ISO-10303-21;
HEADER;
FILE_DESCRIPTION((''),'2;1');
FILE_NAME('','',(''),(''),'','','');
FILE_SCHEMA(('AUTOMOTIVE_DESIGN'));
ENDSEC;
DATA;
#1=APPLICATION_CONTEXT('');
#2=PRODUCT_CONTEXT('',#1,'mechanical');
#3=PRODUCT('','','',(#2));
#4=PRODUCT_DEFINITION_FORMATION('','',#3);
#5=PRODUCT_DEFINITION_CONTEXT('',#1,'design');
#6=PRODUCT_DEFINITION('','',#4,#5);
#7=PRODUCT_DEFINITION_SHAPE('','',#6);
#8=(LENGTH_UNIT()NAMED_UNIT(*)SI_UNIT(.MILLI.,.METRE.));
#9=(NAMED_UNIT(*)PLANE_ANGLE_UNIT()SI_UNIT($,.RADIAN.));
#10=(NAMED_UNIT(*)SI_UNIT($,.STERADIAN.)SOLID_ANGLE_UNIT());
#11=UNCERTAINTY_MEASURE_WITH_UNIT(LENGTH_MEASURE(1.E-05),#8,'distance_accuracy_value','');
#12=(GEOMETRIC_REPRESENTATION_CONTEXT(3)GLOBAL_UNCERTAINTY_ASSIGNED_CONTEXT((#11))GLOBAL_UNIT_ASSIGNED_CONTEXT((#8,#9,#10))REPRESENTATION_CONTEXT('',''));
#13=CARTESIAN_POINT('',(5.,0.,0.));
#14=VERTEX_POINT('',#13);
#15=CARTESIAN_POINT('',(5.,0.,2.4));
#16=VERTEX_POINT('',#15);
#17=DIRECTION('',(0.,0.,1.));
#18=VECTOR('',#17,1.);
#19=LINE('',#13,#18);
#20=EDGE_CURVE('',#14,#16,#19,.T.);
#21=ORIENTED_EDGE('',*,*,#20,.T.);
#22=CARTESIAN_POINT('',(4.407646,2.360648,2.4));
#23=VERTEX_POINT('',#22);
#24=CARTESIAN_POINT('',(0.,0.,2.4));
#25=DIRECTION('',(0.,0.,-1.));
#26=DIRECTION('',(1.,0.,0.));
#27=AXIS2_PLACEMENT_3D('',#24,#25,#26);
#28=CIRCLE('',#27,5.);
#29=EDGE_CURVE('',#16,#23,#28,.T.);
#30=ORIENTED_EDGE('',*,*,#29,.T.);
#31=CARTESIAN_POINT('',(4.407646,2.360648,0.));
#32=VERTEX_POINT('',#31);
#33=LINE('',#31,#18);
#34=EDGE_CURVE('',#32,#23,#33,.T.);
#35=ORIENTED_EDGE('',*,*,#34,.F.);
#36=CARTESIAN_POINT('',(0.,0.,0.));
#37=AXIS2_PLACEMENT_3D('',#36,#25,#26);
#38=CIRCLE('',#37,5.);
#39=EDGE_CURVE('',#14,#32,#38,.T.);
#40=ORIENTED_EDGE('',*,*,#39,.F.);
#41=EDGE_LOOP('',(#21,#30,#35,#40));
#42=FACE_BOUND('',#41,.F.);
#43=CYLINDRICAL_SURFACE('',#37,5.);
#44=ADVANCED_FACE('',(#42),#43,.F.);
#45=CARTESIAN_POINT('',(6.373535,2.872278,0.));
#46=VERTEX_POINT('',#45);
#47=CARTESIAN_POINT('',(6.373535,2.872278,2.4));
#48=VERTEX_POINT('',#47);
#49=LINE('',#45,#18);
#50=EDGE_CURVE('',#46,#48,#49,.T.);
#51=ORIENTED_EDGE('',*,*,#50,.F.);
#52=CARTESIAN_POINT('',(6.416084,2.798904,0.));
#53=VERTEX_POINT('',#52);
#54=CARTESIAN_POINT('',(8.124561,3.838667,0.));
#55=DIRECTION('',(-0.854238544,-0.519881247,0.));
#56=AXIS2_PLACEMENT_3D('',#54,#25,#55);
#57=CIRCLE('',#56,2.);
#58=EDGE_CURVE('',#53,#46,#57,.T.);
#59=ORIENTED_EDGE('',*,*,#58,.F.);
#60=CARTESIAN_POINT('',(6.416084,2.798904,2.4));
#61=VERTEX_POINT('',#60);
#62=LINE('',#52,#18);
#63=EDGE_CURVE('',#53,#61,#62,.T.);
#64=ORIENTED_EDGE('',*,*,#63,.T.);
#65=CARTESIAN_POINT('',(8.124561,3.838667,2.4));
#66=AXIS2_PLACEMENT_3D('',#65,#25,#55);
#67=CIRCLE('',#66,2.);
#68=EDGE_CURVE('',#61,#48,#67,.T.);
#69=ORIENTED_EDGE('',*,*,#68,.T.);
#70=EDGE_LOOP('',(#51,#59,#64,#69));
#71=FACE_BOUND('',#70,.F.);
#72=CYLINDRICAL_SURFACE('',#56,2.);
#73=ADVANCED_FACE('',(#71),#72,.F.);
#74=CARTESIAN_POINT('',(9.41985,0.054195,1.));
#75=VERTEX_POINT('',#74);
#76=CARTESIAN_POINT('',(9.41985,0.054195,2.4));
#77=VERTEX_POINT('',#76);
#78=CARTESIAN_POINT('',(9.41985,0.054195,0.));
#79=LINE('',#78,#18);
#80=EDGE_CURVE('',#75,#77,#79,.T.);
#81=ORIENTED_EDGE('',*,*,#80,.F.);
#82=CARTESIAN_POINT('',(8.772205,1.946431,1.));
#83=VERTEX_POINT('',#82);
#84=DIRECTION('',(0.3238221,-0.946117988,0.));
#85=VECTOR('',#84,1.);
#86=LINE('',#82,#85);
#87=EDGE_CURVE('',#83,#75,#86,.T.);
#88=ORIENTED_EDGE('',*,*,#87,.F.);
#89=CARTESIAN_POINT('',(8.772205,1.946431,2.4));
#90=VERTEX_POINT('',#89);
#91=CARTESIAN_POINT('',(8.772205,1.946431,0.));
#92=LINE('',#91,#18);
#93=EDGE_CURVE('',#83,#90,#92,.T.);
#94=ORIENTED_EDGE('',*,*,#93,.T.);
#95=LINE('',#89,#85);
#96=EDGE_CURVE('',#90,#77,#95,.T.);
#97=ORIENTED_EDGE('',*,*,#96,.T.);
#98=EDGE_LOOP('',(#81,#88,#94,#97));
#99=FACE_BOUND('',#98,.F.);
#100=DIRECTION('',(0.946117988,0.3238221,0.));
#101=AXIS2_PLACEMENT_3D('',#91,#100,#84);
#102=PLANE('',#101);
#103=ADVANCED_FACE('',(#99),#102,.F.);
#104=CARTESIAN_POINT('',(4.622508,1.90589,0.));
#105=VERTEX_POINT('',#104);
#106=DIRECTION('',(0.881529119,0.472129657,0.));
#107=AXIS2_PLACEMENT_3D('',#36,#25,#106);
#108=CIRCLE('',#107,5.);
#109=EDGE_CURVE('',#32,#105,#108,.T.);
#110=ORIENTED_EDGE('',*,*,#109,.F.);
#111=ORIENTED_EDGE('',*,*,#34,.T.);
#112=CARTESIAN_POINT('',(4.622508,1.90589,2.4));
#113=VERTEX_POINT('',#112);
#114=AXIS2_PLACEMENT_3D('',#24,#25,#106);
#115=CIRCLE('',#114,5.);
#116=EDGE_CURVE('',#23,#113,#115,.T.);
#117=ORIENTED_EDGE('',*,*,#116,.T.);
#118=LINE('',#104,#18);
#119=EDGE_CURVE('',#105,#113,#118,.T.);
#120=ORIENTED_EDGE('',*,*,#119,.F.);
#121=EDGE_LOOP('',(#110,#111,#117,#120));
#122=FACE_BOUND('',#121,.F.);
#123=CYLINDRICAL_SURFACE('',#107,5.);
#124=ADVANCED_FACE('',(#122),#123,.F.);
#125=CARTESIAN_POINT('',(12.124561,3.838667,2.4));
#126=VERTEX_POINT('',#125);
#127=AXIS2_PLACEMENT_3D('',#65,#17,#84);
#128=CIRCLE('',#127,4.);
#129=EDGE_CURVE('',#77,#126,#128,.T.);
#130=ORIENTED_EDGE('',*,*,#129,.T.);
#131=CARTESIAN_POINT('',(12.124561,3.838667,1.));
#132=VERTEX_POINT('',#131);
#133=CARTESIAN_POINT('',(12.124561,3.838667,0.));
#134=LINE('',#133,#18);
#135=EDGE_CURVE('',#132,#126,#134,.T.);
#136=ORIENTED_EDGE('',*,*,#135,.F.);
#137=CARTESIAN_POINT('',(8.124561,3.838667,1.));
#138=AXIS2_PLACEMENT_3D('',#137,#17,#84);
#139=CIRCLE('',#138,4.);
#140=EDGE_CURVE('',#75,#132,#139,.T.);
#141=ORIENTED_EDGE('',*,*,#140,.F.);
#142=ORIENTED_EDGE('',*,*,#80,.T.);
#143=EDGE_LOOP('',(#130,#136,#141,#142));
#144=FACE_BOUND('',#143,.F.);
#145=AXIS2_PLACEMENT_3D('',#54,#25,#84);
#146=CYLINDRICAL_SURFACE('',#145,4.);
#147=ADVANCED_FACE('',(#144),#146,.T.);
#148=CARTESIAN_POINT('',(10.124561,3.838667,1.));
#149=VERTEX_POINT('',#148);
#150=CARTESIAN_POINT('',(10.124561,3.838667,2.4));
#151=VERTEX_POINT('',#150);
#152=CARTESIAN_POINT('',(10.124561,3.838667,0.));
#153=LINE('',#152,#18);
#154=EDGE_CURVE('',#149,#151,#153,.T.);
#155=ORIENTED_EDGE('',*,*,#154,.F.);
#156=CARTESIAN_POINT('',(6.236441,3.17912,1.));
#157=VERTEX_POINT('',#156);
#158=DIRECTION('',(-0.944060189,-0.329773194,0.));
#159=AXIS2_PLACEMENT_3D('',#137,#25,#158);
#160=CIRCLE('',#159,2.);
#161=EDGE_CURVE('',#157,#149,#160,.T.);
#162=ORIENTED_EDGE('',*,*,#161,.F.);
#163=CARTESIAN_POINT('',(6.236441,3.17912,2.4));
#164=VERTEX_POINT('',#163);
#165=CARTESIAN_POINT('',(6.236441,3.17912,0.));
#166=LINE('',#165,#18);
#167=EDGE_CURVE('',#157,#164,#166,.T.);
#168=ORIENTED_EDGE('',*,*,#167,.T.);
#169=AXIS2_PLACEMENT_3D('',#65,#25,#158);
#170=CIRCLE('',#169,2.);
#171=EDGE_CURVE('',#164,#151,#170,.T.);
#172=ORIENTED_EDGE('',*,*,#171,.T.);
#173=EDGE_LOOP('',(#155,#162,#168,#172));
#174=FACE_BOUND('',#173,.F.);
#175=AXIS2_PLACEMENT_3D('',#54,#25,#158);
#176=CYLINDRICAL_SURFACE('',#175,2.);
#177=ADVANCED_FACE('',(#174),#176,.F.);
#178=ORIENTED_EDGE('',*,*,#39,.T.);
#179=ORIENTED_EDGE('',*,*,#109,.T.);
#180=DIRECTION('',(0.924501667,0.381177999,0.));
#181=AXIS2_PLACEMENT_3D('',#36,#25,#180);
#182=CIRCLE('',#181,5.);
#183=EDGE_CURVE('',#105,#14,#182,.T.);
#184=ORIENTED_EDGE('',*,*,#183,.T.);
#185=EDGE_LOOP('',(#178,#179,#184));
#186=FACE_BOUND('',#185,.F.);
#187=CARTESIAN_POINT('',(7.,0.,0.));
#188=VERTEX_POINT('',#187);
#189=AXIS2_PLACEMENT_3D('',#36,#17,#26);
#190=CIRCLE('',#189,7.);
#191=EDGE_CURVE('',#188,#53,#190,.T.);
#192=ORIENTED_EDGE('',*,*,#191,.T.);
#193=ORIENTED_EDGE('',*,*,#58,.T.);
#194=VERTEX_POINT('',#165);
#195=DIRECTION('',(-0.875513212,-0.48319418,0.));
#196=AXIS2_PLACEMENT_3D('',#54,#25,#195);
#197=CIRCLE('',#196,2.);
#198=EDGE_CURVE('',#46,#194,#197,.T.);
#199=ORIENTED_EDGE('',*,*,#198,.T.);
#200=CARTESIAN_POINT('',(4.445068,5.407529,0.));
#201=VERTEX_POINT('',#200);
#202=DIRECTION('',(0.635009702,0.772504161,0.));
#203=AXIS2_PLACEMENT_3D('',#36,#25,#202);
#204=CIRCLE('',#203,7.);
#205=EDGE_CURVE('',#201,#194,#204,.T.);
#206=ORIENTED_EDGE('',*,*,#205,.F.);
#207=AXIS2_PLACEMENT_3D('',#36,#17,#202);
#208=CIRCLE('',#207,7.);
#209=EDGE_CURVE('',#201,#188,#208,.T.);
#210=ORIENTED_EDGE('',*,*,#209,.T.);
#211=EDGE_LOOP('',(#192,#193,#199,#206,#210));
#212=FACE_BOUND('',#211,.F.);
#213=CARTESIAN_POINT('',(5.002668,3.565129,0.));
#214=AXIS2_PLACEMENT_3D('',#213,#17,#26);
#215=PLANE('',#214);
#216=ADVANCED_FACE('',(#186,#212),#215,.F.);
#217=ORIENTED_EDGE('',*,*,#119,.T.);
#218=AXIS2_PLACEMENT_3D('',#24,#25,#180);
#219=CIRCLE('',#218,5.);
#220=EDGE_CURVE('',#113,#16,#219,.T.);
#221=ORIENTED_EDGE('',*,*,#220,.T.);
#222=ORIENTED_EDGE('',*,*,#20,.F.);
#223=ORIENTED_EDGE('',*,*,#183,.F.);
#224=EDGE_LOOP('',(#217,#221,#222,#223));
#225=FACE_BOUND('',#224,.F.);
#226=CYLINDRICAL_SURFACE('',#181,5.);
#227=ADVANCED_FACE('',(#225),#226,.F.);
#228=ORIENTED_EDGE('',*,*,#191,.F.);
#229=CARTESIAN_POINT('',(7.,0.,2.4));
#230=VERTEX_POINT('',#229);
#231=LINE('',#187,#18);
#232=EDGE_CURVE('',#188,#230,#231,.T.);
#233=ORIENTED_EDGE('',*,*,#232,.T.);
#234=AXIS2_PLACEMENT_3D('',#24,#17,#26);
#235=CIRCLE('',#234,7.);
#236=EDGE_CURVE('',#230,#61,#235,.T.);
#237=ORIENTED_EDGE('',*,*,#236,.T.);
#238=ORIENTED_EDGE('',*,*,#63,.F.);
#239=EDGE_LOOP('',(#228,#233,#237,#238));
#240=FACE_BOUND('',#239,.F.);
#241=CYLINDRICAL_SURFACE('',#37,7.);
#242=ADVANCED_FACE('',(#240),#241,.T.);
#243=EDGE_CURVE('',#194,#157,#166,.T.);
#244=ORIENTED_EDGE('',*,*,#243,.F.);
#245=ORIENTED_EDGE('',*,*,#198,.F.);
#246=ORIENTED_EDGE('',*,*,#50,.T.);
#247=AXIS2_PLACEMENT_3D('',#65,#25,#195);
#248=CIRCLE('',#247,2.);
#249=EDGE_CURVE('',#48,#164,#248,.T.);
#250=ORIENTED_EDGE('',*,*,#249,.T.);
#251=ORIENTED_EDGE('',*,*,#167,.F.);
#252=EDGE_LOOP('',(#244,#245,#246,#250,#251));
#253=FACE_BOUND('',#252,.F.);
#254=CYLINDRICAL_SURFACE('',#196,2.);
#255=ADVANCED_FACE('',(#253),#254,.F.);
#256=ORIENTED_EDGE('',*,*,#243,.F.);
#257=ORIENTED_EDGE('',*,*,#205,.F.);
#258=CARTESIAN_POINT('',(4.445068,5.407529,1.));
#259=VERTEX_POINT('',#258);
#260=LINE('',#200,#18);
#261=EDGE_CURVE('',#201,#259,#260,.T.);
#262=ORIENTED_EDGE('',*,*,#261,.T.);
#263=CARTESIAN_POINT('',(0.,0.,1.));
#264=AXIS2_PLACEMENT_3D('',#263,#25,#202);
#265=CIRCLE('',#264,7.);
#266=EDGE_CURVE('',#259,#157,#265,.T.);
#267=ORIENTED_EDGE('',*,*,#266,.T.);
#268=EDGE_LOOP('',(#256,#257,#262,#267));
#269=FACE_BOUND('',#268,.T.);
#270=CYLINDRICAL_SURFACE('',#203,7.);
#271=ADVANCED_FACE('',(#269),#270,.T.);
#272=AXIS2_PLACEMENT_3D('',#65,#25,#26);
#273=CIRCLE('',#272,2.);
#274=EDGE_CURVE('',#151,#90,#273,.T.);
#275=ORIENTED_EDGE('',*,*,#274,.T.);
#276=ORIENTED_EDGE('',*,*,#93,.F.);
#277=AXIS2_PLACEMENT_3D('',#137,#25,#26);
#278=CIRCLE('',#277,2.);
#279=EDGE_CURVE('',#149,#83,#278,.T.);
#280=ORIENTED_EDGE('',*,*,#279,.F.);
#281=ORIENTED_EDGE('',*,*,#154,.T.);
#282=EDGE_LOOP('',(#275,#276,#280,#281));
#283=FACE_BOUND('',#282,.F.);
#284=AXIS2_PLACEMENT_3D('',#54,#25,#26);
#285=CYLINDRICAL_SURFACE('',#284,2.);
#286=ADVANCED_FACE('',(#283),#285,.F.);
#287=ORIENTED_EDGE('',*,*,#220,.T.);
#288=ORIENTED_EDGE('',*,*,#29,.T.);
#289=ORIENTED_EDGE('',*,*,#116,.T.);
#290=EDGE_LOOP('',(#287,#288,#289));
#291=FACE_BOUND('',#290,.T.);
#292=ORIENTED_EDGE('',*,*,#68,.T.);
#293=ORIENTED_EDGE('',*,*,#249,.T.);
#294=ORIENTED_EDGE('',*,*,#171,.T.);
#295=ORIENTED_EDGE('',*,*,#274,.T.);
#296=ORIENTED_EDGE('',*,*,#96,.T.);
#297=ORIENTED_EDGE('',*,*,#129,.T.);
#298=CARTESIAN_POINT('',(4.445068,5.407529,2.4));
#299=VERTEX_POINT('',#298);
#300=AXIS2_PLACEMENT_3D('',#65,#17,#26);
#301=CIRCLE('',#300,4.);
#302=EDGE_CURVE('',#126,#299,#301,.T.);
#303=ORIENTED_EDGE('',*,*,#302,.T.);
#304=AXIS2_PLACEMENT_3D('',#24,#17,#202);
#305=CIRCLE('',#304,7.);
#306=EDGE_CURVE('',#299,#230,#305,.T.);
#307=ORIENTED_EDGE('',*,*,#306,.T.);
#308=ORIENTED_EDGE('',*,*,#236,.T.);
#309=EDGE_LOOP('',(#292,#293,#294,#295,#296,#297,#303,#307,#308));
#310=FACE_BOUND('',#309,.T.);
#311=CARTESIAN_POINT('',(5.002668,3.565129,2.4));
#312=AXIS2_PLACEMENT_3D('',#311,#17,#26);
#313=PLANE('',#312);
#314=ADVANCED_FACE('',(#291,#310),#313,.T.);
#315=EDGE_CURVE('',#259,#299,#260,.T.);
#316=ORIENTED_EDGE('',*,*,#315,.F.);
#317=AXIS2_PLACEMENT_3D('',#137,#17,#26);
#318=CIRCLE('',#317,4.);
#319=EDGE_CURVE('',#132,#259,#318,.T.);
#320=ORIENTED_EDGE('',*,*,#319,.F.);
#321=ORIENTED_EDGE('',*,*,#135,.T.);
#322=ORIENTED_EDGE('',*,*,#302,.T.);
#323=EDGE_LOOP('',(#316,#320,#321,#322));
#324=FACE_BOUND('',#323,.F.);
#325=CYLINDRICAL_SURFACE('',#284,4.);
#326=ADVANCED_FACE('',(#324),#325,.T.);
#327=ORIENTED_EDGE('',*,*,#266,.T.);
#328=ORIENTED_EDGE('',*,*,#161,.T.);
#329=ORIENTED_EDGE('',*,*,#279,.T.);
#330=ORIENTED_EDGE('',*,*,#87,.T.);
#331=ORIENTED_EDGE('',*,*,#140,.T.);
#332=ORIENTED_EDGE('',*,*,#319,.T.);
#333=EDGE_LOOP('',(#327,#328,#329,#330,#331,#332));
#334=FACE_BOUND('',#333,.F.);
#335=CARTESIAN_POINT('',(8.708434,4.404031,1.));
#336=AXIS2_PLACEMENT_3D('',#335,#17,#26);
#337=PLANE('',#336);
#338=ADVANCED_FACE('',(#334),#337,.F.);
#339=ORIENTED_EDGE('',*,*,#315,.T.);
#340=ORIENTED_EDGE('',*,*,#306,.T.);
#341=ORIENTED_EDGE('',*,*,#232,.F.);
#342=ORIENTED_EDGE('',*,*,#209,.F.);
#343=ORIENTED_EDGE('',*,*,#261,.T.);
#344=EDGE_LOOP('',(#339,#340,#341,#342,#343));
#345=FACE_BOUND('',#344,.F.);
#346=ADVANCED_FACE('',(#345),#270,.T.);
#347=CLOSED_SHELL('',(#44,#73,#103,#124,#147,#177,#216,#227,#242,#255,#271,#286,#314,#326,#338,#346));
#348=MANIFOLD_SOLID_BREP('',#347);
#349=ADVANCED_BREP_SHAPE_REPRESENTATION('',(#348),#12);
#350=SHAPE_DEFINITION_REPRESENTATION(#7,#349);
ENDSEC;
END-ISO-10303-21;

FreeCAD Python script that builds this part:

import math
import FreeCAD as App
import Part
import Sketcher
from FreeCAD import Vector

doc = App.newDocument("Part")
params = doc.addObject("Spreadsheet::Sheet", "Params")
for row, (alias, value) in enumerate([
    ("sketch1_radius", "7 mm"),
    ("sketch1_radius2", "2 mm"),
    ("sketch1_radius3", "4 mm"),
    ("sketch1_radius4", "5 mm"),
    ("pad1_length", "2.4 mm"),
    ("sketch2_radius", "4 mm"),
    ("sketch2_radius2", "7 mm"),
    ("sketch2_radius3", "2 mm"),
    ("pocket1_length", "1 mm"),
], start=1):
    params.set(f"A{row}", alias)
    params.set(f"B{row}", "=" + value)
    params.setAlias(f"B{row}", alias)

body = doc.addObject("PartDesign::Body", "Body")

sketch1 = doc.addObject("Sketcher::SketchObject", "Sketch")
body.addObject(sketch1)
sketch1.AttachmentSupport = (doc.XY_Plane, [""])
sketch1.MapMode = "FlatFace"
sketch1.addGeometry(Part.ArcOfCircle(Part.Circle(Vector(0, 0, 0), Vector(0, 0, 1), 7), math.radians(51), math.radians(360)), False)
sketch1.addGeometry(Part.ArcOfCircle(Part.Circle(Vector(0, 0, 0), Vector(0, 0, 1), 7), math.radians(0), math.radians(24)), False)
sketch1.addGeometry(Part.ArcOfCircle(Part.Circle(Vector(8.12, 3.84, 0), Vector(0, 0, 1), 2), math.radians(-151.11), math.radians(-148.68)), False)
sketch1.addGeometry(Part.ArcOfCircle(Part.Circle(Vector(8.12, 3.84, 0), Vector(0, 0, 1), 2), math.radians(-160.74), math.radians(-151.11)), False)
sketch1.addGeometry(Part.ArcOfCircle(Part.Circle(Vector(8.12, 3.84, 0), Vector(0, 0, 1), 2), math.radians(0), math.radians(199)), False)
sketch1.addGeometry(Part.ArcOfCircle(Part.Circle(Vector(8.12, 3.84, 0), Vector(0, 0, 1), 2), math.radians(-71), math.radians(0)), False)
sketch1.addGeometry(Part.LineSegment(Vector(8.77, 1.95, 0), Vector(9.42, 0.05, 0)), False)
sketch1.addGeometry(Part.ArcOfCircle(Part.Circle(Vector(8.12, 3.84, 0), Vector(0, 0, 1), 4), math.radians(-71), math.radians(0)), False)
sketch1.addGeometry(Part.ArcOfCircle(Part.Circle(Vector(8.12, 3.84, 0), Vector(0, 0, 1), 4), math.radians(0), math.radians(157)), False)
sketch1.addGeometry(Part.ArcOfCircle(Part.Circle(Vector(0, 0, 0), Vector(0, 0, 1), 5), math.radians(22.41), math.radians(28.17)), False)
sketch1.addGeometry(Part.ArcOfCircle(Part.Circle(Vector(0, 0, 0), Vector(0, 0, 1), 5), math.radians(0), math.radians(22)), False)
sketch1.addGeometry(Part.ArcOfCircle(Part.Circle(Vector(0, 0, 0), Vector(0, 0, 1), 5), math.radians(28), math.radians(360)), False)
sketch1.addConstraint(Sketcher.Constraint("Tangent", 0, 2, 1, 1))
sketch1.addConstraint(Sketcher.Constraint("Coincident", 1, 2, 2, 2))
sketch1.addConstraint(Sketcher.Constraint("Tangent", 2, 1, 3, 2))
sketch1.addConstraint(Sketcher.Constraint("Tangent", 3, 1, 4, 2))
sketch1.addConstraint(Sketcher.Constraint("Tangent", 4, 1, 5, 2))
sketch1.addConstraint(Sketcher.Constraint("Coincident", 5, 1, 6, 1))
sketch1.addConstraint(Sketcher.Constraint("Coincident", 6, 2, 7, 1))
sketch1.addConstraint(Sketcher.Constraint("Tangent", 7, 2, 8, 1))
sketch1.addConstraint(Sketcher.Constraint("Coincident", 8, 2, 0, 1))
sketch1.addConstraint(Sketcher.Constraint("Tangent", 9, 1, 10, 2))
sketch1.addConstraint(Sketcher.Constraint("Tangent", 10, 1, 11, 2))
sketch1.addConstraint(Sketcher.Constraint("Tangent", 11, 1, 9, 2))
sketch1.addConstraint(Sketcher.Constraint("Coincident", 0, 3, -1, 1))
sketch1.addConstraint(Sketcher.Constraint("Coincident", 9, 3, -1, 1))
sketch1.addConstraint(Sketcher.Constraint("Coincident", 4, 3, 2, 3))
sketch1.addConstraint(Sketcher.Constraint("Coincident", 7, 3, 2, 3))
sketch1.addConstraint(Sketcher.Constraint("Equal", 0, 1))
sketch1.addConstraint(Sketcher.Constraint("Equal", 4, 5))
sketch1.addConstraint(Sketcher.Constraint("Equal", 7, 8))
sketch1.addConstraint(Sketcher.Constraint("PointOnObject", 0, 2, -1))
sketch1.addConstraint(Sketcher.Constraint("PointOnObject", 10, 1, -1))
sketch1.addConstraint(Sketcher.Constraint("Horizontal", 8, 3, 4, 1))
sketch1.addConstraint(Sketcher.Constraint("Horizontal", 4, 1, 7, 2))
sketch1.addConstraint(Sketcher.Constraint("Radius", 0, 7.0))
sketch1.addConstraint(Sketcher.Constraint("Radius", 2, 2.0))
sketch1.addConstraint(Sketcher.Constraint("Radius", 7, 4.0))
sketch1.addConstraint(Sketcher.Constraint("Radius", 9, 5.0))
sketch1.addConstraint(Sketcher.Constraint("DistanceX", -1, 1, 2, 3, 8.124561))
sketch1.addConstraint(Sketcher.Constraint("DistanceY", -1, 1, 2, 1, 2.872278))
sketch1.addConstraint(Sketcher.Constraint("DistanceX", -1, 1, 3, 1, 6.236441))
sketch1.addConstraint(Sketcher.Constraint("DistanceY", -1, 1, 3, 1, 3.17912))
sketch1.addConstraint(Sketcher.Constraint("DistanceY", -1, 1, 5, 1, 1.946431))
sketch1.addConstraint(Sketcher.Constraint("DistanceX", -1, 1, 6, 2, 9.41985))
sketch1.addConstraint(Sketcher.Constraint("DistanceX", -1, 1, 9, 1, 4.622508))
sketch1.addConstraint(Sketcher.Constraint("DistanceY", -1, 1, 11, 1, 2.360648))
sketch1.setExpression("Constraints[23]", "Params.sketch1_radius")
sketch1.setExpression("Constraints[24]", "Params.sketch1_radius2")
sketch1.setExpression("Constraints[25]", "Params.sketch1_radius3")
sketch1.setExpression("Constraints[26]", "Params.sketch1_radius4")
pad1 = doc.addObject("PartDesign::Pad", "Pad")
body.addObject(pad1)
pad1.Profile = sketch1
pad1.setExpression("Length", "Params.pad1_length")

sketch2 = doc.addObject("Sketcher::SketchObject", "Sketch001")
body.addObject(sketch2)
sketch2.AttachmentSupport = (doc.XY_Plane, [""])
sketch2.MapMode = "FlatFace"
sketch2.addGeometry(Part.ArcOfCircle(Part.Circle(Vector(8.1, 3.8, 0), Vector(0, 0, 1), 4), math.radians(0), math.radians(157)), False)
sketch2.addGeometry(Part.ArcOfCircle(Part.Circle(Vector(0, 0, 0), Vector(0, 0, 1), 7), math.radians(27), math.radians(51)), False)
sketch2.addGeometry(Part.ArcOfCircle(Part.Circle(Vector(8.1, 3.8, 0), Vector(0, 0, 1), 2), math.radians(0), math.radians(199)), False)
sketch2.addGeometry(Part.ArcOfCircle(Part.Circle(Vector(8.1, 3.8, 0), Vector(0, 0, 1), 2), math.radians(-71), math.radians(0)), False)
sketch2.addGeometry(Part.LineSegment(Vector(8.8, 1.9, 0), Vector(9.4, 0.1, 0)), False)
sketch2.addGeometry(Part.ArcOfCircle(Part.Circle(Vector(8.1, 3.8, 0), Vector(0, 0, 1), 4), math.radians(-71), math.radians(0)), False)
sketch2.addConstraint(Sketcher.Constraint("Coincident", 0, 2, 1, 2))
sketch2.addConstraint(Sketcher.Constraint("Coincident", 1, 1, 2, 2))
sketch2.addConstraint(Sketcher.Constraint("Tangent", 2, 1, 3, 2))
sketch2.addConstraint(Sketcher.Constraint("Coincident", 3, 1, 4, 1))
sketch2.addConstraint(Sketcher.Constraint("Coincident", 4, 2, 5, 1))
sketch2.addConstraint(Sketcher.Constraint("Tangent", 5, 2, 0, 1))
sketch2.addConstraint(Sketcher.Constraint("Coincident", 1, 3, -1, 1))
sketch2.addConstraint(Sketcher.Constraint("Coincident", 2, 3, 0, 3))
sketch2.addConstraint(Sketcher.Constraint("Equal", 2, 3))
sketch2.addConstraint(Sketcher.Constraint("Equal", 0, 5))
sketch2.addConstraint(Sketcher.Constraint("Horizontal", 5, 3, 2, 1))
sketch2.addConstraint(Sketcher.Constraint("Horizontal", 2, 1, 5, 2))
sketch2.addConstraint(Sketcher.Constraint("Radius", 0, 4.0))
sketch2.addConstraint(Sketcher.Constraint("Radius", 1, 7.0))
sketch2.addConstraint(Sketcher.Constraint("Radius", 2, 2.0))
sketch2.addConstraint(Sketcher.Constraint("DistanceX", -1, 1, 0, 3, 8.124561))
sketch2.addConstraint(Sketcher.Constraint("DistanceY", -1, 1, 0, 2, 5.407529))
sketch2.addConstraint(Sketcher.Constraint("DistanceY", -1, 1, 3, 1, 1.946431))
sketch2.addConstraint(Sketcher.Constraint("DistanceX", -1, 1, 4, 2, 9.41985))
sketch2.setExpression("Constraints[12]", "Params.sketch2_radius")
sketch2.setExpression("Constraints[13]", "Params.sketch2_radius2")
sketch2.setExpression("Constraints[14]", "Params.sketch2_radius3")
pocket1 = doc.addObject("PartDesign::Pocket", "Pocket")
body.addObject(pocket1)
pocket1.Profile = sketch2
pocket1.setExpression("Length", "Params.pocket1_length")
pocket1.Reversed = True

doc.recompute()
